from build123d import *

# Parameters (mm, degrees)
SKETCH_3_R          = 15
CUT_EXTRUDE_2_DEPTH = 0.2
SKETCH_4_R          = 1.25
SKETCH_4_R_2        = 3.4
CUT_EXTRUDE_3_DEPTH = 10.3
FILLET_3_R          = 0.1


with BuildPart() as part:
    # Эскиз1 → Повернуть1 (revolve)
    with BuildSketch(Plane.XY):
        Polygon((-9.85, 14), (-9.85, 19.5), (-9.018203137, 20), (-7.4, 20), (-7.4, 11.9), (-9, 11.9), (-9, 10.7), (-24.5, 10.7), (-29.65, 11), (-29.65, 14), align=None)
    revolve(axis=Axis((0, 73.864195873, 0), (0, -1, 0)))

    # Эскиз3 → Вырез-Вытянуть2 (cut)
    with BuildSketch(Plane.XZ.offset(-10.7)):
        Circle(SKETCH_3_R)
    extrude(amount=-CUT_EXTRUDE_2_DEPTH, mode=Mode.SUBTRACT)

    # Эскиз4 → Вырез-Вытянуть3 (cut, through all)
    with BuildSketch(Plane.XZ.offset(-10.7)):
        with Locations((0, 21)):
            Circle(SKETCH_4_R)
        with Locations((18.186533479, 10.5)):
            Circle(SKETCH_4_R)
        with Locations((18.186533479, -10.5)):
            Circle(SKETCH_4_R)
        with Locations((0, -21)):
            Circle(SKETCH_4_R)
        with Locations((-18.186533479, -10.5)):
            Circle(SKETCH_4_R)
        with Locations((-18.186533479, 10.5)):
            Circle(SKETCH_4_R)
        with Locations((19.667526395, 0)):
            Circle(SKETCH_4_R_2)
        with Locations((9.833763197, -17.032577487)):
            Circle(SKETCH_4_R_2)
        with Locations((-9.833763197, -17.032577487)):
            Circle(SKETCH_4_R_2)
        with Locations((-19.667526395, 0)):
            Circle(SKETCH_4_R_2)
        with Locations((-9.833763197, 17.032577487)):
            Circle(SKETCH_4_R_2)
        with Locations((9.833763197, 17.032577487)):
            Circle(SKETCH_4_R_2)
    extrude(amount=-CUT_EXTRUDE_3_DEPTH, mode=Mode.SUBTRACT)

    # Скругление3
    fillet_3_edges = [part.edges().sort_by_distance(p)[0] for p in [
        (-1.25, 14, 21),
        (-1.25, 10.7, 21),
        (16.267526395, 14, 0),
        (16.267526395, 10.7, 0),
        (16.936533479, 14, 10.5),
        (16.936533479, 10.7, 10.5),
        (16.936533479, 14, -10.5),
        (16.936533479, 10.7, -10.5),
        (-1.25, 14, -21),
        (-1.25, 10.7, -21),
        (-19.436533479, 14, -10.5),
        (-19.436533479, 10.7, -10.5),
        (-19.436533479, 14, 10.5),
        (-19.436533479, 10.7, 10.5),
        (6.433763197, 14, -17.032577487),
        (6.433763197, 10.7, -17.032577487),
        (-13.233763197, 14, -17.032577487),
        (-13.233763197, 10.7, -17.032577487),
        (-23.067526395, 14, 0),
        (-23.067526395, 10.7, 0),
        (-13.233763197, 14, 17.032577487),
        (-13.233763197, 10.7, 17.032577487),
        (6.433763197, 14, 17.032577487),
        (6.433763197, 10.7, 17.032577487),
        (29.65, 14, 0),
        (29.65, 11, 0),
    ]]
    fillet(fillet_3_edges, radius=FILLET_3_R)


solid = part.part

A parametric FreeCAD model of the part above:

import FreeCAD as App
import Part
import Sketcher
from FreeCAD import Vector
Q = App.Units.Quantity


def edges_at(feature, points):
    """Names of the edges that pass closest to the given points."""
    edges = feature.Shape.Edges
    near = lambda p: min(range(len(edges)), key=lambda i: edges[i].distToShape(Part.Vertex(*p))[0])
    return sorted({f"Edge{near(p) + 1}" for p in points})

doc = App.newDocument("Part")
body = doc.addObject("PartDesign::Body", "Body")

# Sketch on XY plane
sketch1 = body.newObject("Sketcher::SketchObject", "Sketch")
sketch1.AttachmentSupport = (doc.getObject("XY_Plane"), [""])
sketch1.MapMode = "FlatFace"
sketch1.addGeometry([
    Part.LineSegment(Vector(-9.8, 19.5, 0), Vector(-9.8, 14, 0)),  # 0
    Part.LineSegment(Vector(-9.8, 14, 0), Vector(-29.6, 14, 0)),  # 1
    Part.LineSegment(Vector(-29.6, 14, 0), Vector(-29.6, 11, 0)),  # 2
    Part.LineSegment(Vector(-29.6, 11, 0), Vector(-24.5, 10.7, 0)),  # 3
    Part.LineSegment(Vector(-24.5, 10.7, 0), Vector(-9, 10.7, 0)),  # 4
    Part.LineSegment(Vector(-9, 10.7, 0), Vector(-9, 11.9, 0)),  # 5
    Part.LineSegment(Vector(-9, 11.9, 0), Vector(-7.4, 11.9, 0)),  # 6
    Part.LineSegment(Vector(-7.4, 11.9, 0), Vector(-7.4, 20, 0)),  # 7
    Part.LineSegment(Vector(-7.4, 20, 0), Vector(-9, 20, 0)),  # 8
    Part.LineSegment(Vector(-9, 20, 0), Vector(-9.8, 19.5, 0)),  # 9
], False)
sketch1.addConstraint([
    Sketcher.Constraint("Coincident", 0, 2, 1, 1),
    Sketcher.Constraint("Coincident", 1, 2, 2, 1),
    Sketcher.Constraint("Coincident", 2, 2, 3, 1),
    Sketcher.Constraint("Coincident", 3, 2, 4, 1),
    Sketcher.Constraint("Coincident", 4, 2, 5, 1),
    Sketcher.Constraint("Coincident", 5, 2, 6, 1),
    Sketcher.Constraint("Coincident", 6, 2, 7, 1),
    Sketcher.Constraint("Coincident", 7, 2, 8, 1),
    Sketcher.Constraint("Coincident", 8, 2, 9, 1),
    Sketcher.Constraint("Coincident", 9, 2, 0, 1),
    Sketcher.Constraint("Vertical", 0),
    Sketcher.Constraint("Horizontal", 1),
    Sketcher.Constraint("Vertical", 2),
    Sketcher.Constraint("Horizontal", 4),
    Sketcher.Constraint("Vertical", 5),
    Sketcher.Constraint("Horizontal", 6),
    Sketcher.Constraint("Vertical", 7),
    Sketcher.Constraint("Horizontal", 8),
    Sketcher.Constraint("DistanceY", 2, 2, 2, 1, Q("3 mm")),
    Sketcher.Constraint("DistanceX", 1, 2, 1, 1, Q("19.8 mm")),
    Sketcher.Constraint("DistanceX", 4, 1, 4, 2, Q("15.5 mm")),
    Sketcher.Constraint("DistanceX", 6, 1, 6, 2, Q("1.6 mm")),
    Sketcher.Constraint("DistanceY", 0, 2, 0, 1, Q("5.5 mm")),
    Sketcher.Constraint("DistanceY", 5, 1, 5, 2, Q("1.2 mm")),
    Sketcher.Constraint("DistanceY", 7, 1, 7, 2, Q("8.1 mm")),
    Sketcher.Constraint("DistanceY", -1, 1, 0, 2, Q("14 mm")),
    Sketcher.Constraint("DistanceX", 4, 2, -1, 1, Q("9 mm")),
    Sketcher.Constraint("DistanceY", -1, 1, 7, 2, Q("20 mm")),
    Sketcher.Constraint("DistanceX", 0, 2, -1, 1, Q("9.85 mm")),
    Sketcher.Constraint("Distance", 9, Q("0.970508 mm")),
])
revolution = body.newObject("PartDesign::Revolution", "Revolution")
revolution.Profile = sketch1
revolution.ReferenceAxis = (sketch1, ["V_Axis"])
revolution.Angle = 360

# Sketch on XZ plane
sketch2 = body.newObject("Sketcher::SketchObject", "Sketch001")
sketch2.AttachmentSupport = (doc.getObject("XZ_Plane"), [""])
sketch2.MapMode = "FlatFace"
sketch2.AttachmentOffset = App.Placement(Vector(0, 0, -10.7), App.Rotation())
sketch2.addGeometry(Part.Circle(Vector(0, 0, 0), Vector(0, 0, 1), 15), False)
sketch2.addConstraint([
    Sketcher.Constraint("Coincident", 0, 3, -1, 1),
    Sketcher.Constraint("Diameter", 0, Q("30 mm")),
])
pocket1 = body.newObject("PartDesign::Pocket", "Pocket")
pocket1.Profile = sketch2
pocket1.Length = 0.2

# Sketch on XZ plane
sketch3 = body.newObject("Sketcher::SketchObject", "Sketch002")
sketch3.AttachmentSupport = (doc.getObject("XZ_Plane"), [""])
sketch3.MapMode = "FlatFace"
sketch3.AttachmentOffset = App.Placement(Vector(0, 0, -10.7), App.Rotation())
sketch3.addGeometry([
    Part.Circle(Vector(0, 21, 0), Vector(0, 0, 1), 1.2),  # 0
    Part.Circle(Vector(18.2, 10.5, 0), Vector(0, 0, 1), 1.2),  # 1
    Part.Circle(Vector(18.2, -10.5, 0), Vector(0, 0, 1), 1.2),  # 2
    Part.Circle(Vector(0, -21, 0), Vector(0, 0, 1), 1.2),  # 3
    Part.Circle(Vector(-18.2, -10.5, 0), Vector(0, 0, 1), 1.2),  # 4
    Part.Circle(Vector(-18.2, 10.5, 0), Vector(0, 0, 1), 1.2),  # 5
    Part.Circle(Vector(19.7, 0, 0), Vector(0, 0, 1), 3.4),  # 6
    Part.Circle(Vector(9.8, -17, 0), Vector(0, 0, 1), 3.4),  # 7
    Part.Circle(Vector(-9.8, -17, 0), Vector(0, 0, 1), 3.4),  # 8
    Part.Circle(Vector(-19.7, 0, 0), Vector(0, 0, 1), 3.4),  # 9
    Part.Circle(Vector(-9.8, 17, 0), Vector(0, 0, 1), 3.4),  # 10
    Part.Circle(Vector(9.8, 17, 0), Vector(0, 0, 1), 3.4),  # 11
], False)
sketch3.addConstraint([
    Sketcher.Constraint("Equal", 0, 1),
    Sketcher.Constraint("Equal", 1, 2),
    Sketcher.Constraint("Equal", 2, 3),
    Sketcher.Constraint("Equal", 3, 4),
    Sketcher.Constraint("Equal", 4, 5),
    Sketcher.Constraint("Equal", 6, 7),
    Sketcher.Constraint("Equal", 7, 8),
    Sketcher.Constraint("Equal", 8, 9),
    Sketcher.Constraint("Equal", 9, 10),
    Sketcher.Constraint("Equal", 10, 11),
    Sketcher.Constraint("Symmetric", 0, 3, 3, 3, -1, 1),
    Sketcher.Constraint("Symmetric", 1, 3, 4, 3, -1, 1),
    Sketcher.Constraint("Symmetric", 2, 3, 5, 3, -1, 1),
    Sketcher.Constraint("Symmetric", 6, 3, 9, 3, -1, 1),
    Sketcher.Constraint("Symmetric", 7, 3, 10, 3, -1, 1),
    Sketcher.Constraint("Symmetric", 8, 3, 11, 3, -1, 1),
    Sketcher.Constraint("Symmetric", 2, 3, 4, 3, -2),
    Sketcher.Constraint("Symmetric", 7, 3, 8, 3, -2),
    Sketcher.Constraint("PointOnObject", 0, 3, -2),
    Sketcher.Constraint("PointOnObject", 6, 3, -1),
    Sketcher.Constraint("Diameter", 0, Q("2.5 mm")),
    Sketcher.Constraint("Diameter", 6, Q("6.8 mm")),
    Sketcher.Constraint("DistanceY", -1, 1, 0, 3, Q("21 mm")),
    Sketcher.Constraint("DistanceY", 2, 3, 1, 3, Q("21 mm")),
    Sketcher.Constraint("DistanceX", 4, 3, 6, 3, Q("37.85406 mm")),
    Sketcher.Constraint("DistanceX", 7, 3, 2, 3, Q("8.35277 mm")),
    Sketcher.Constraint("DistanceX", -1, 1, 1, 3, Q("18.186533 mm")),
    Sketcher.Constraint("DistanceY", 7, 3, -1, 1, Q("17.032577 mm")),
])
pocket2 = body.newObject("PartDesign::Pocket", "Pocket001")
pocket2.Profile = sketch3
pocket2.Type = "ThroughAll"
doc.recompute()

fillet = body.newObject("PartDesign::Fillet", "Fillet")
fillet.Base = (pocket2, edges_at(pocket2, [
    (-1.25, 14, 21),
    (-1.25, 10.7, 21),
    (16.268, 14, 0),
    (16.268, 10.7, 0),
    (16.937, 14, 10.5),
    (16.937, 10.7, 10.5),
    (16.937, 14, -10.5),
    (16.937, 10.7, -10.5),
    (-1.25, 14, -21),
    (-1.25, 10.7, -21),
    (-19.437, 14, -10.5),
    (-19.437, 10.7, -10.5),
    (-19.437, 14, 10.5),
    (-19.437, 10.7, 10.5),
    (6.434, 14, -17.033),
    (6.434, 10.7, -17.033),
    (-13.234, 14, -17.033),
    (-13.234, 10.7, -17.033),
    (-23.068, 14, 0),
    (-23.068, 10.7, 0),
    (-13.234, 14, 17.033),
    (-13.234, 10.7, 17.033),
    (6.434, 14, 17.033),
    (6.434, 10.7, 17.033),
    (29.65, 14, 0),
    (29.65, 11, 0),
]))
fillet.Radius = 0.1

doc.recompute()
